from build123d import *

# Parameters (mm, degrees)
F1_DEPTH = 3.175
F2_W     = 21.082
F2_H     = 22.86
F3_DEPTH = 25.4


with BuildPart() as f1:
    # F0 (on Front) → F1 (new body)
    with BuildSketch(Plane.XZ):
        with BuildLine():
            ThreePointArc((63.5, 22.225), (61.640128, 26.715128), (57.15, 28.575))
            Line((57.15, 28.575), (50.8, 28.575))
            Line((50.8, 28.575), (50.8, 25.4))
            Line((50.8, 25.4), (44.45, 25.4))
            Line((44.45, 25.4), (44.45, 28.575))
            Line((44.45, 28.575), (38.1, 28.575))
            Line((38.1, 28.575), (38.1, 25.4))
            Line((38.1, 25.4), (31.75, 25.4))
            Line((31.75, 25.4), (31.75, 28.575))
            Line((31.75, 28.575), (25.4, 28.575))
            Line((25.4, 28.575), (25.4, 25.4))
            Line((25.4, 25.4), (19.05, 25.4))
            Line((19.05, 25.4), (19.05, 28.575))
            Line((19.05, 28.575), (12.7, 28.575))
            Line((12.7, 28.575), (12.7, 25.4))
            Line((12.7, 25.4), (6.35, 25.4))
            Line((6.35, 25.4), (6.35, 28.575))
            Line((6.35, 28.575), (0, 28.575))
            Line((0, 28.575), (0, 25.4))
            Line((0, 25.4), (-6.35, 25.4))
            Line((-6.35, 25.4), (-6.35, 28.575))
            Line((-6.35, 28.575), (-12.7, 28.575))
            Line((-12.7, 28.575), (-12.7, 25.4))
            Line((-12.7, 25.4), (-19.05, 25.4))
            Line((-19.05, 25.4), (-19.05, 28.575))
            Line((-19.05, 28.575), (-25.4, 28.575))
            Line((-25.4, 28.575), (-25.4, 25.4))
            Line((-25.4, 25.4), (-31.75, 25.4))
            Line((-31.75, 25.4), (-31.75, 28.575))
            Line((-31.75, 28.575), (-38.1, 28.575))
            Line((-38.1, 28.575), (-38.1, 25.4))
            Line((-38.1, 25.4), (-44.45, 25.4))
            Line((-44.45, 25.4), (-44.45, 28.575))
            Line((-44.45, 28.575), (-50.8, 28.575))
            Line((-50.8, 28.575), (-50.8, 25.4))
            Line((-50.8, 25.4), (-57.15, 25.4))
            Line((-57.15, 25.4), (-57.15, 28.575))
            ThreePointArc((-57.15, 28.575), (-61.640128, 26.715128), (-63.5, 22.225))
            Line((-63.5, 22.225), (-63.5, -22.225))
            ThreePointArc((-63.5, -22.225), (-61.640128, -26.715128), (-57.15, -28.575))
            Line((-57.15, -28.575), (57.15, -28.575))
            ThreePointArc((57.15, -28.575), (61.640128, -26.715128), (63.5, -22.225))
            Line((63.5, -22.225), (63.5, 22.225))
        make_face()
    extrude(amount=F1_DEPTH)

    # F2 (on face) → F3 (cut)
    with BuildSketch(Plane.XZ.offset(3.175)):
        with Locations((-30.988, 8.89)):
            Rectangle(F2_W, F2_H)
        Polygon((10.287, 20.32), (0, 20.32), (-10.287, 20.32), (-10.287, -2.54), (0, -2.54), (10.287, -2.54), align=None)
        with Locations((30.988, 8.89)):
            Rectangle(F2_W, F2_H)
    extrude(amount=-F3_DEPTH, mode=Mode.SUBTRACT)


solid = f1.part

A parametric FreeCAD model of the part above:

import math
import FreeCAD as App
import Part
import Sketcher

V = App.Vector
Q = App.Units.Quantity


def add_polygon(sketch, points):
    """Adds a closed chain of lines whose ends are joined by coincident constraints."""
    first, n = sketch.GeometryCount, len(points)
    for a, b in zip(points, points[1:] + points[:1]):
        sketch.addGeometry(Part.LineSegment(App.Vector(*a, 0), App.Vector(*b, 0)), False)
    for i in range(n):
        sketch.addConstraint(Sketcher.Constraint("Coincident", first + i, 2, first + (i + 1) % n, 1))

doc = App.newDocument("Part")
params = doc.addObject("Spreadsheet::Sheet", "Params")
for row, (alias, value) in enumerate([
    ("sketch1_radius", "0.25 in"),
    ("sketch1_width", "4.5 in"),
    ("pad1_length", "0.125 in"),
    ("sketch2_height", "0.9 in"),
    ("sketch2_width", "0.83 in"),
    ("sketch2_width2", "0.81 in"),
    ("pocket1_length", "1 in"),
], start=1):
    params.set(f"A{row}", alias)
    params.set(f"B{row}", "=" + value)
    params.setAlias(f"B{row}", alias)

body = doc.addObject("PartDesign::Body", "Body")

# Sketch on XZ plane
sketch1 = body.newObject("Sketcher::SketchObject", "Sketch")
sketch1.AttachmentSupport = (doc.getObject("XZ_Plane"), [""])
sketch1.MapMode = "FlatFace"
sketch1.addGeometry([
    Part.ArcOfCircle(Part.Circle(V(57.1, 22.2, 0), V(0, 0, 1), 6.4), math.radians(0), math.radians(90)),  # 0
    Part.LineSegment(V(57.1, 28.6, 0), V(50.8, 28.6, 0)),  # 1
    Part.LineSegment(V(50.8, 28.6, 0), V(50.8, 25.4, 0)),  # 2
    Part.LineSegment(V(50.8, 25.4, 0), V(44.5, 25.4, 0)),  # 3
    Part.LineSegment(V(44.5, 25.4, 0), V(44.5, 28.6, 0)),  # 4
    Part.LineSegment(V(44.5, 28.6, 0), V(38.1, 28.6, 0)),  # 5
    Part.LineSegment(V(38.1, 28.6, 0), V(38.1, 25.4, 0)),  # 6
    Part.LineSegment(V(38.1, 25.4, 0), V(31.8, 25.4, 0)),  # 7
    Part.LineSegment(V(31.8, 25.4, 0), V(31.8, 28.6, 0)),  # 8
    Part.LineSegment(V(31.8, 28.6, 0), V(25.4, 28.6, 0)),  # 9
    Part.LineSegment(V(25.4, 28.6, 0), V(25.4, 25.4, 0)),  # 10
    Part.LineSegment(V(25.4, 25.4, 0), V(19.1, 25.4, 0)),  # 11
    Part.LineSegment(V(19.1, 25.4, 0), V(19.1, 28.6, 0)),  # 12
    Part.LineSegment(V(19.1, 28.6, 0), V(12.7, 28.6, 0)),  # 13
    Part.LineSegment(V(12.7, 28.6, 0), V(12.7, 25.4, 0)),  # 14
    Part.LineSegment(V(12.7, 25.4, 0), V(6.3, 25.4, 0)),  # 15
    Part.LineSegment(V(6.3, 25.4, 0), V(6.3, 28.6, 0)),  # 16
    Part.LineSegment(V(6.3, 28.6, 0), V(0, 28.6, 0)),  # 17
    Part.LineSegment(V(0, 28.6, 0), V(0, 25.4, 0)),  # 18
    Part.LineSegment(V(0, 25.4, 0), V(-6.3, 25.4, 0)),  # 19
    Part.LineSegment(V(-6.3, 25.4, 0), V(-6.3, 28.6, 0)),  # 20
    Part.LineSegment(V(-6.3, 28.6, 0), V(-12.7, 28.6, 0)),  # 21
    Part.LineSegment(V(-12.7, 28.6, 0), V(-12.7, 25.4, 0)),  # 22
    Part.LineSegment(V(-12.7, 25.4, 0), V(-19.1, 25.4, 0)),  # 23
    Part.LineSegment(V(-19.1, 25.4, 0), V(-19.1, 28.6, 0)),  # 24
    Part.LineSegment(V(-19.1, 28.6, 0), V(-25.4, 28.6, 0)),  # 25
    Part.LineSegment(V(-25.4, 28.6, 0), V(-25.4, 25.4, 0)),  # 26
    Part.LineSegment(V(-25.4, 25.4, 0), V(-31.8, 25.4, 0)),  # 27
    Part.LineSegment(V(-31.8, 25.4, 0), V(-31.8, 28.6, 0)),  # 28
    Part.LineSegment(V(-31.8, 28.6, 0), V(-38.1, 28.6, 0)),  # 29
    Part.LineSegment(V(-38.1, 28.6, 0), V(-38.1, 25.4, 0)),  # 30
    Part.LineSegment(V(-38.1, 25.4, 0), V(-44.5, 25.4, 0)),  # 31
    Part.LineSegment(V(-44.5, 25.4, 0), V(-44.5, 28.6, 0)),  # 32
    Part.LineSegment(V(-44.5, 28.6, 0), V(-50.8, 28.6, 0)),  # 33
    Part.LineSegment(V(-50.8, 28.6, 0), V(-50.8, 25.4, 0)),  # 34
    Part.LineSegment(V(-50.8, 25.4, 0), V(-57.1, 25.4, 0)),  # 35
    Part.LineSegment(V(-57.1, 25.4, 0), V(-57.1, 28.6, 0)),  # 36
    Part.ArcOfCircle(Part.Circle(V(-57.1, 22.2, 0), V(0, 0, 1), 6.4), math.radians(90), math.radians(180)),  # 37
    Part.LineSegment(V(-63.5, 22.2, 0), V(-63.5, -22.2, 0)),  # 38
    Part.ArcOfCircle(Part.Circle(V(-57.1, -22.2, 0), V(0, 0, 1), 6.4), math.radians(-180), math.radians(-90)),  # 39
    Part.LineSegment(V(-57.1, -28.6, 0), V(57.1, -28.6, 0)),  # 40
    Part.ArcOfCircle(Part.Circle(V(57.1, -22.2, 0), V(0, 0, 1), 6.4), math.radians(-90), math.radians(0)),  # 41
    Part.LineSegment(V(63.5, -22.2, 0), V(63.5, 22.2, 0)),  # 42
], False)
sketch1.addConstraint([
    Sketcher.Constraint("Tangent", 0, 2, 1, 1),
    Sketcher.Constraint("Coincident", 1, 2, 2, 1),
    Sketcher.Constraint("Coincident", 2, 2, 3, 1),
    Sketcher.Constraint("Coincident", 3, 2, 4, 1),
    Sketcher.Constraint("Coincident", 4, 2, 5, 1),
    Sketcher.Constraint("Coincident", 5, 2, 6, 1),
    Sketcher.Constraint("Coincident", 6, 2, 7, 1),
    Sketcher.Constraint("Coincident", 7, 2, 8, 1),
    Sketcher.Constraint("Coincident", 8, 2, 9, 1),
    Sketcher.Constraint("Coincident", 9, 2, 10, 1),
    Sketcher.Constraint("Coincident", 10, 2, 11, 1),
    Sketcher.Constraint("Coincident", 11, 2, 12, 1),
    Sketcher.Constraint("Coincident", 12, 2, 13, 1),
    Sketcher.Constraint("Coincident", 13, 2, 14, 1),
    Sketcher.Constraint("Coincident", 14, 2, 15, 1),
    Sketcher.Constraint("Coincident", 15, 2, 16, 1),
    Sketcher.Constraint("Coincident", 16, 2, 17, 1),
    Sketcher.Constraint("Coincident", 17, 2, 18, 1),
    Sketcher.Constraint("Coincident", 18, 2, 19, 1),
    Sketcher.Constraint("Coincident", 19, 2, 20, 1),
    Sketcher.Constraint("Coincident", 20, 2, 21, 1),
    Sketcher.Constraint("Coincident", 21, 2, 22, 1),
    Sketcher.Constraint("Coincident", 22, 2, 23, 1),
    Sketcher.Constraint("Coincident", 23, 2, 24, 1),
    Sketcher.Constraint("Coincident", 24, 2, 25, 1),
    Sketcher.Constraint("Coincident", 25, 2, 26, 1),
    Sketcher.Constraint("Coincident", 26, 2, 27, 1),
    Sketcher.Constraint("Coincident", 27, 2, 28, 1),
    Sketcher.Constraint("Coincident", 28, 2, 29, 1),
    Sketcher.Constraint("Coincident", 29, 2, 30, 1),
    Sketcher.Constraint("Coincident", 30, 2, 31, 1),
    Sketcher.Constraint("Coincident", 31, 2, 32, 1),
    Sketcher.Constraint("Coincident", 32, 2, 33, 1),
    Sketcher.Constraint("Coincident", 33, 2, 34, 1),
    Sketcher.Constraint("Coincident", 34, 2, 35, 1),
    Sketcher.Constraint("Coincident", 35, 2, 36, 1),
    Sketcher.Constraint("Coincident", 36, 2, 37, 1),
    Sketcher.Constraint("Tangent", 37, 2, 38, 1),
    Sketcher.Constraint("Tangent", 38, 2, 39, 1),
    Sketcher.Constraint("Tangent", 39, 2, 40, 1),
    Sketcher.Constraint("Tangent", 40, 2, 41, 1),
    Sketcher.Constraint("Tangent", 41, 2, 42, 1),
    Sketcher.Constraint("Tangent", 42, 2, 0, 1),
    Sketcher.Constraint("Horizontal", 1),
    Sketcher.Constraint("Vertical", 2),
    Sketcher.Constraint("Horizontal", 3),
    Sketcher.Constraint("Vertical", 4),
    Sketcher.Constraint("Horizontal", 5),
    Sketcher.Constraint("Vertical", 6),
    Sketcher.Constraint("Horizontal", 7),
    Sketcher.Constraint("Vertical", 8),
    Sketcher.Constraint("Horizontal", 9),
    Sketcher.Constraint("Vertical", 10),
    Sketcher.Constraint("Horizontal", 11),
    Sketcher.Constraint("Vertical", 12),
    Sketcher.Constraint("Horizontal", 13),
    Sketcher.Constraint("Vertical", 14),
    Sketcher.Constraint("Horizontal", 15),
    Sketcher.Constraint("Vertical", 16),
    Sketcher.Constraint("Horizontal", 17),
    Sketcher.Constraint("Vertical", 18),
    Sketcher.Constraint("Horizontal", 19),
    Sketcher.Constraint("Vertical", 20),
    Sketcher.Constraint("Horizontal", 21),
    Sketcher.Constraint("Vertical", 22),
    Sketcher.Constraint("Horizontal", 23),
    Sketcher.Constraint("Vertical", 24),
    Sketcher.Constraint("Horizontal", 25),
    Sketcher.Constraint("Vertical", 26),
    Sketcher.Constraint("Horizontal", 27),
    Sketcher.Constraint("Vertical", 28),
    Sketcher.Constraint("Horizontal", 29),
    Sketcher.Constraint("Vertical", 30),
    Sketcher.Constraint("Horizontal", 31),
    Sketcher.Constraint("Vertical", 32),
    Sketcher.Constraint("Horizontal", 33),
    Sketcher.Constraint("Vertical", 34),
    Sketcher.Constraint("Horizontal", 35),
    Sketcher.Constraint("Vertical", 36),
    Sketcher.Constraint("Vertical", 38),
    Sketcher.Constraint("Horizontal", 40),
    Sketcher.Constraint("Vertical", 42),
    Sketcher.Constraint("Equal", 0, 37),
    Sketcher.Constraint("Equal", 37, 39),
    Sketcher.Constraint("Equal", 39, 41),
    Sketcher.Constraint("Symmetric", 0, 3, 39, 3, -1, 1),
    Sketcher.Constraint("Symmetric", 36, 2, 40, 2, -1, 1),
    Sketcher.Constraint("Symmetric", 15, 2, 19, 2, -2),
    Sketcher.Constraint("Symmetric", 13, 2, 21, 2, -2),
    Sketcher.Constraint("Symmetric", 11, 2, 23, 2, -2),
    Sketcher.Constraint("Symmetric", 9, 2, 25, 2, -2),
    Sketcher.Constraint("Symmetric", 7, 2, 27, 2, -2),
    Sketcher.Constraint("Symmetric", 5, 2, 29, 2, -2),
    Sketcher.Constraint("Symmetric", 3, 2, 31, 2, -2),
    Sketcher.Constraint("Symmetric", 1, 2, 33, 2, -2),
    Sketcher.Constraint("PointOnObject", 17, 2, -2),
    Sketcher.Constraint("Horizontal", 1, 2, 4, 2),
    Sketcher.Constraint("Horizontal", 3, 2, 6, 2),
    Sketcher.Constraint("Horizontal", 5, 2, 8, 2),
    Sketcher.Constraint("Horizontal", 7, 2, 10, 2),
    Sketcher.Constraint("Horizontal", 9, 2, 12, 2),
    Sketcher.Constraint("Horizontal", 11, 2, 14, 2),
    Sketcher.Constraint("Horizontal", 13, 2, 16, 2),
    Sketcher.Constraint("Horizontal", 31, 2, 34, 2),
    Sketcher.Constraint("Equal", 1, 3),
    Sketcher.Constraint("Equal", 3, 5),
    Sketcher.Constraint("Equal", 5, 7),
    Sketcher.Constraint("Equal", 7, 9),
    Sketcher.Constraint("Equal", 9, 11),
    Sketcher.Constraint("Equal", 11, 13),
    Sketcher.Constraint("Equal", 13, 15),
    Sketcher.Constraint("Equal", 15, 17),
    Sketcher.Constraint("Radius", 0, Q("0.25 in")),
    Sketcher.Constraint("DistanceX", 40, 1, 40, 2, Q("4.5 in")),
    Sketcher.Constraint("DistanceY", -1, 1, 2, 2, Q("1 in")),
    Sketcher.Constraint("DistanceY", 41, 3, 0, 2, Q("2 in")),
])
sketch1.setExpression("Constraints[112]", "Params.sketch1_radius")
sketch1.setExpression("Constraints[113]", "Params.sketch1_width")
pad1 = body.newObject("PartDesign::Pad", "Pad")
pad1.Profile = sketch1
pad1.setExpression("Length", "Params.pad1_length")

# Sketch on XZ plane
sketch2 = body.newObject("Sketcher::SketchObject", "Sketch001")
sketch2.AttachmentSupport = (doc.getObject("XZ_Plane"), [""])
sketch2.MapMode = "FlatFace"
sketch2.AttachmentOffset = App.Placement(V(0, 0, 0.125 * 25.4), App.Rotation())
add_polygon(sketch2, [(-42, 20), (-42, -3), (-20, -3), (-20, 20)])  # lines 0-3
add_polygon(sketch2, [(10, 20), (-10, 20), (-10, -3), (10, -3)])  # lines 4-7
add_polygon(sketch2, [(20, 20), (20, -3), (42, -3), (42, 20)])  # lines 8-11
sketch2.addConstraint([
    Sketcher.Constraint("Vertical", 0),
    Sketcher.Constraint("Horizontal", 1),
    Sketcher.Constraint("Vertical", 2),
    Sketcher.Constraint("Horizontal", 3),
    Sketcher.Constraint("Horizontal", 4),
    Sketcher.Constraint("Vertical", 5),
    Sketcher.Constraint("Horizontal", 6),
    Sketcher.Constraint("Vertical", 7),
    Sketcher.Constraint("Vertical", 8),
    Sketcher.Constraint("Horizontal", 9),
    Sketcher.Constraint("Vertical", 10),
    Sketcher.Constraint("Horizontal", 11),
    Sketcher.Constraint("Symmetric", 1, 2, 8, 2, -2),
    Sketcher.Constraint("Symmetric", 3, 2, 10, 2, -2),
    Sketcher.Constraint("Horizontal", 3, 2, 4, 2),
    Sketcher.Constraint("Horizontal", 1, 2, 5, 2),
    Sketcher.Constraint("DistanceY", 0, 2, 0, 1, Q("0.9 in")),
    Sketcher.Constraint("DistanceX", 1, 1, 1, 2, Q("0.83 in")),
    Sketcher.Constraint("DistanceX", 4, 2, 4, 1, Q("0.81 in")),
    Sketcher.Constraint("DistanceY", 0, 2, -1, 1, Q("0.1 in")),
    Sketcher.Constraint("DistanceX", 2, 2, 4, 2, Q("0.4 in")),
    Sketcher.Constraint("DistanceX", 6, 2, 8, 2, Q("0.4 in")),
])
sketch2.setExpression("Constraints[28]", "Params.sketch2_height")
sketch2.setExpression("Constraints[29]", "Params.sketch2_width")
sketch2.setExpression("Constraints[30]", "Params.sketch2_width2")
pocket1 = body.newObject("PartDesign::Pocket", "Pocket")
pocket1.Profile = sketch2
pocket1.setExpression("Length", "Params.pocket1_length")

doc.recompute()
